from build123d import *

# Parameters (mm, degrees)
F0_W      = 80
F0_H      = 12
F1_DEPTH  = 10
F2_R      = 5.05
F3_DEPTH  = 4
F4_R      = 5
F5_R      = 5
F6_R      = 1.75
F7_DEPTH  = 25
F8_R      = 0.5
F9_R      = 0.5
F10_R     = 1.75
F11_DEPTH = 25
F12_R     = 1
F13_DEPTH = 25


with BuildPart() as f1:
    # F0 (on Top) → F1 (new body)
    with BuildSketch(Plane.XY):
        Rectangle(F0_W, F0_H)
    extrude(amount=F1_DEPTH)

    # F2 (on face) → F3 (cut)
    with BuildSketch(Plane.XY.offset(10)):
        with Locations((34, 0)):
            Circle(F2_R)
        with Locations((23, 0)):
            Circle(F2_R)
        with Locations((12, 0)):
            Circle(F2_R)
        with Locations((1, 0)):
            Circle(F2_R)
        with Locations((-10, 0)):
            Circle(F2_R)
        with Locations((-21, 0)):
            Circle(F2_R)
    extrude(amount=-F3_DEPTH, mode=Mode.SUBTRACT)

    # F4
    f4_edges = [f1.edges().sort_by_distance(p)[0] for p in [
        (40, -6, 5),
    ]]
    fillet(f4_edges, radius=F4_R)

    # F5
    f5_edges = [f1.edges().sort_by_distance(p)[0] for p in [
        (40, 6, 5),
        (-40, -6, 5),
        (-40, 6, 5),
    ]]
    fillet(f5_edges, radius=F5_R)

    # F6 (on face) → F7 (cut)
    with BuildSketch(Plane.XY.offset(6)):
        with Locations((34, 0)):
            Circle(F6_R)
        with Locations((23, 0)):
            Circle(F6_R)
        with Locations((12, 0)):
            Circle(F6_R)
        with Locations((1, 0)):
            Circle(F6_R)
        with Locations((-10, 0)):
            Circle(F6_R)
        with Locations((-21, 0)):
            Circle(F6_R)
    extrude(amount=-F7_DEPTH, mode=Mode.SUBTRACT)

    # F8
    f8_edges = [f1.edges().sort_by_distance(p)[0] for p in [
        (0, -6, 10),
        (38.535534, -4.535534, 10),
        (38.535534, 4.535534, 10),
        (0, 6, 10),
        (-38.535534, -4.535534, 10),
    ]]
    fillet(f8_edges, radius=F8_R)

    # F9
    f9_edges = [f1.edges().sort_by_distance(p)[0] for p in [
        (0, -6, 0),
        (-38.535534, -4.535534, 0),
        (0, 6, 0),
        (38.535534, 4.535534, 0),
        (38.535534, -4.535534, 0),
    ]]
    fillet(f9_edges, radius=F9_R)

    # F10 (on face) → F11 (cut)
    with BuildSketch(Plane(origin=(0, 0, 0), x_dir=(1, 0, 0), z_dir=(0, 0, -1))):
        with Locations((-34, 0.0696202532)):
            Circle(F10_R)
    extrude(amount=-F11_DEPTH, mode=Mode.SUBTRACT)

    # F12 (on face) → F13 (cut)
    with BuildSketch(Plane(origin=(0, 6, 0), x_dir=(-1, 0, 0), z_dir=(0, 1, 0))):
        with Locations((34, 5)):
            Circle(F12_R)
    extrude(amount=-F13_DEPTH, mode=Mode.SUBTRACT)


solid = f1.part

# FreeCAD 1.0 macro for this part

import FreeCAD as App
import Part
import Sketcher

V = App.Vector
Q = App.Units.Quantity


def edges_at(feature, points):
    """Names of the edges that pass closest to the given points."""
    edges = feature.Shape.Edges
    near = lambda p: min(range(len(edges)), key=lambda i: edges[i].distToShape(Part.Vertex(*p))[0])
    return sorted({f"Edge{near(p) + 1}" for p in points})

doc = App.newDocument("Part")
body = doc.addObject("PartDesign::Body", "Body")

sketch1 = body.newObject("Sketcher::SketchObject", "Sketch")
sketch1.AttachmentSupport = (doc.getObject("XY_Plane"), [""])
sketch1.MapMode = "FlatFace"
sketch1.addGeometry([
    Part.LineSegment(V(-40, 6, 0), V(-40, -6, 0)),
    Part.LineSegment(V(-40, -6, 0), V(40, -6, 0)),
    Part.LineSegment(V(40, -6, 0), V(40, 6, 0)),
    Part.LineSegment(V(40, 6, 0), V(-40, 6, 0)),
], False)
sketch1.addConstraint([
    Sketcher.Constraint("Coincident", 0, 2, 1, 1),
    Sketcher.Constraint("Coincident", 1, 2, 2, 1),
    Sketcher.Constraint("Coincident", 2, 2, 3, 1),
    Sketcher.Constraint("Coincident", 3, 2, 0, 1),
    Sketcher.Constraint("Vertical", 0),
    Sketcher.Constraint("Horizontal", 1),
    Sketcher.Constraint("Vertical", 2),
    Sketcher.Constraint("Horizontal", 3),
    Sketcher.Constraint("Symmetric", 0, 2, 2, 2, -1, 1),
    Sketcher.Constraint("DistanceX", 1, 1, 1, 2, Q("80 mm")),
    Sketcher.Constraint("DistanceY", 0, 2, 0, 1, Q("12 mm")),
])
pad1 = body.newObject("PartDesign::Pad", "Pad")
pad1.Profile = sketch1
pad1.Length = 10

sketch2 = body.newObject("Sketcher::SketchObject", "Sketch001")
sketch2.AttachmentSupport = (doc.getObject("XY_Plane"), [""])
sketch2.MapMode = "FlatFace"
sketch2.AttachmentOffset = App.Placement(V(0, 0, 10), App.Rotation())
sketch2.addGeometry([
    Part.Circle(V(34, 0, 0), V(0, 0, 1), 5.05),
    Part.Circle(V(23, 0, 0), V(0, 0, 1), 5.05),
    Part.Circle(V(12, 0, 0), V(0, 0, 1), 5.05),
    Part.Circle(V(1, 0, 0), V(0, 0, 1), 5.05),
    Part.Circle(V(-10, 0, 0), V(0, 0, 1), 5.05),
    Part.Circle(V(-21, 0, 0), V(0, 0, 1), 5.05),
], False)
sketch2.addConstraint([
    Sketcher.Constraint("Equal", 0, 1),
    Sketcher.Constraint("Equal", 1, 2),
    Sketcher.Constraint("Equal", 2, 3),
    Sketcher.Constraint("Equal", 3, 4),
    Sketcher.Constraint("Equal", 4, 5),
    Sketcher.Constraint("PointOnObject", 0, 3, -1),
    Sketcher.Constraint("PointOnObject", 1, 3, -1),
    Sketcher.Constraint("PointOnObject", 2, 3, -1),
    Sketcher.Constraint("PointOnObject", 3, 3, -1),
    Sketcher.Constraint("PointOnObject", 4, 3, -1),
    Sketcher.Constraint("PointOnObject", 5, 3, -1),
    Sketcher.Constraint("Diameter", 0, Q("10.1 mm")),
    Sketcher.Constraint("DistanceX", -1, 1, 0, 3, Q("34 mm")),
    Sketcher.Constraint("DistanceX", -1, 1, 1, 3, Q("23 mm")),
    Sketcher.Constraint("DistanceX", -1, 1, 2, 3, Q("12 mm")),
    Sketcher.Constraint("DistanceX", -1, 1, 3, 3, Q("1 mm")),
    Sketcher.Constraint("DistanceX", 4, 3, -1, 1, Q("10 mm")),
    Sketcher.Constraint("DistanceX", 5, 3, -1, 1, Q("21 mm")),
])
pocket1 = body.newObject("PartDesign::Pocket", "Pocket")
pocket1.Profile = sketch2
pocket1.Length = 4
doc.recompute()

fillet = body.newObject("PartDesign::Fillet", "Fillet")
fillet.Base = (pocket1, edges_at(pocket1, [(40, -6, 5)]))
fillet.Radius = 5
doc.recompute()

fillet2 = body.newObject("PartDesign::Fillet", "Fillet001")
fillet2.Base = (fillet, edges_at(fillet, [(40, 6, 5), (-40, -6, 5), (-40, 6, 5)]))
fillet2.Radius = 5

sketch3 = body.newObject("Sketcher::SketchObject", "Sketch002")
sketch3.AttachmentSupport = (doc.getObject("XY_Plane"), [""])
sketch3.MapMode = "FlatFace"
sketch3.AttachmentOffset = App.Placement(V(0, 0, 6), App.Rotation())
sketch3.addGeometry([
    Part.Circle(V(34, 0, 0), V(0, 0, 1), 1.75),
    Part.Circle(V(23, 0, 0), V(0, 0, 1), 1.75),
    Part.Circle(V(12, 0, 0), V(0, 0, 1), 1.75),
    Part.Circle(V(1, 0, 0), V(0, 0, 1), 1.75),
    Part.Circle(V(-10, 0, 0), V(0, 0, 1), 1.75),
    Part.Circle(V(-21, 0, 0), V(0, 0, 1), 1.75),
], False)
sketch3.addConstraint([
    Sketcher.Constraint("Equal", 0, 1),
    Sketcher.Constraint("Equal", 1, 2),
    Sketcher.Constraint("Equal", 2, 3),
    Sketcher.Constraint("Equal", 3, 4),
    Sketcher.Constraint("Equal", 4, 5),
    Sketcher.Constraint("PointOnObject", 0, 3, -1),
    Sketcher.Constraint("PointOnObject", 1, 3, -1),
    Sketcher.Constraint("PointOnObject", 2, 3, -1),
    Sketcher.Constraint("PointOnObject", 3, 3, -1),
    Sketcher.Constraint("PointOnObject", 4, 3, -1),
    Sketcher.Constraint("PointOnObject", 5, 3, -1),
    Sketcher.Constraint("Diameter", 0, Q("3.5 mm")),
    Sketcher.Constraint("DistanceX", -1, 1, 0, 3, Q("34 mm")),
    Sketcher.Constraint("DistanceX", -1, 1, 1, 3, Q("23 mm")),
    Sketcher.Constraint("DistanceX", -1, 1, 2, 3, Q("12 mm")),
    Sketcher.Constraint("DistanceX", -1, 1, 3, 3, Q("1 mm")),
    Sketcher.Constraint("DistanceX", 4, 3, -1, 1, Q("10 mm")),
    Sketcher.Constraint("DistanceX", 5, 3, -1, 1, Q("21 mm")),
])
pocket2 = body.newObject("PartDesign::Pocket", "Pocket001")
pocket2.Profile = sketch3
pocket2.Length = 25
doc.recompute()

fillet3 = body.newObject("PartDesign::Fillet", "Fillet002")
fillet3.Base = (pocket2, edges_at(pocket2, [
    (0, -6, 10),
    (38.536, -4.536, 10),
    (38.536, 4.536, 10),
    (0, 6, 10),
    (-38.536, -4.536, 10),
]))
fillet3.Radius = 0.5
doc.recompute()

fillet4 = body.newObject("PartDesign::Fillet", "Fillet003")
fillet4.Base = (fillet3, edges_at(fillet3, [
    (0, -6, 0),
    (-38.536, -4.536, 0),
    (0, 6, 0),
    (38.536, 4.536, 0),
    (38.536, -4.536, 0),
]))
fillet4.Radius = 0.5

sketch4 = body.newObject("Sketcher::SketchObject", "Sketch003")
sketch4.AttachmentSupport = (doc.getObject("XY_Plane"), [""])
sketch4.MapMode = "FlatFace"
sketch4.addGeometry(Part.Circle(V(-34, -0.06962, 0), V(0, 0, 1), 1.75), False)
sketch4.addConstraint([
    Sketcher.Constraint("Diameter", 0, Q("3.5 mm")),
    Sketcher.Constraint("DistanceX", 0, 3, -1, 1, Q("34 mm")),
    Sketcher.Constraint("DistanceY", 0, 3, -1, 1, Q("0.06962 mm")),
])
pocket3 = body.newObject("PartDesign::Pocket", "Pocket002")
pocket3.Profile = sketch4
pocket3.Length = 25
pocket3.Reversed = True

sketch5 = body.newObject("Sketcher::SketchObject", "Sketch004")
sketch5.AttachmentSupport = (doc.getObject("XZ_Plane"), [""])
sketch5.MapMode = "FlatFace"
sketch5.AttachmentOffset = App.Placement(V(0, 0, -6), App.Rotation())
sketch5.addGeometry(Part.Circle(V(-34, 5, 0), V(0, 0, 1), 1), False)
sketch5.addConstraint([
    Sketcher.Constraint("Diameter", 0, Q("2 mm")),
    Sketcher.Constraint("DistanceX", 0, 3, -1, 1, Q("34 mm")),
    Sketcher.Constraint("DistanceY", -1, 1, 0, 3, Q("5 mm")),
])
pocket4 = body.newObject("PartDesign::Pocket", "Pocket003")
pocket4.Profile = sketch5
pocket4.Length = 25
pocket4.Reversed = True

doc.recompute()
